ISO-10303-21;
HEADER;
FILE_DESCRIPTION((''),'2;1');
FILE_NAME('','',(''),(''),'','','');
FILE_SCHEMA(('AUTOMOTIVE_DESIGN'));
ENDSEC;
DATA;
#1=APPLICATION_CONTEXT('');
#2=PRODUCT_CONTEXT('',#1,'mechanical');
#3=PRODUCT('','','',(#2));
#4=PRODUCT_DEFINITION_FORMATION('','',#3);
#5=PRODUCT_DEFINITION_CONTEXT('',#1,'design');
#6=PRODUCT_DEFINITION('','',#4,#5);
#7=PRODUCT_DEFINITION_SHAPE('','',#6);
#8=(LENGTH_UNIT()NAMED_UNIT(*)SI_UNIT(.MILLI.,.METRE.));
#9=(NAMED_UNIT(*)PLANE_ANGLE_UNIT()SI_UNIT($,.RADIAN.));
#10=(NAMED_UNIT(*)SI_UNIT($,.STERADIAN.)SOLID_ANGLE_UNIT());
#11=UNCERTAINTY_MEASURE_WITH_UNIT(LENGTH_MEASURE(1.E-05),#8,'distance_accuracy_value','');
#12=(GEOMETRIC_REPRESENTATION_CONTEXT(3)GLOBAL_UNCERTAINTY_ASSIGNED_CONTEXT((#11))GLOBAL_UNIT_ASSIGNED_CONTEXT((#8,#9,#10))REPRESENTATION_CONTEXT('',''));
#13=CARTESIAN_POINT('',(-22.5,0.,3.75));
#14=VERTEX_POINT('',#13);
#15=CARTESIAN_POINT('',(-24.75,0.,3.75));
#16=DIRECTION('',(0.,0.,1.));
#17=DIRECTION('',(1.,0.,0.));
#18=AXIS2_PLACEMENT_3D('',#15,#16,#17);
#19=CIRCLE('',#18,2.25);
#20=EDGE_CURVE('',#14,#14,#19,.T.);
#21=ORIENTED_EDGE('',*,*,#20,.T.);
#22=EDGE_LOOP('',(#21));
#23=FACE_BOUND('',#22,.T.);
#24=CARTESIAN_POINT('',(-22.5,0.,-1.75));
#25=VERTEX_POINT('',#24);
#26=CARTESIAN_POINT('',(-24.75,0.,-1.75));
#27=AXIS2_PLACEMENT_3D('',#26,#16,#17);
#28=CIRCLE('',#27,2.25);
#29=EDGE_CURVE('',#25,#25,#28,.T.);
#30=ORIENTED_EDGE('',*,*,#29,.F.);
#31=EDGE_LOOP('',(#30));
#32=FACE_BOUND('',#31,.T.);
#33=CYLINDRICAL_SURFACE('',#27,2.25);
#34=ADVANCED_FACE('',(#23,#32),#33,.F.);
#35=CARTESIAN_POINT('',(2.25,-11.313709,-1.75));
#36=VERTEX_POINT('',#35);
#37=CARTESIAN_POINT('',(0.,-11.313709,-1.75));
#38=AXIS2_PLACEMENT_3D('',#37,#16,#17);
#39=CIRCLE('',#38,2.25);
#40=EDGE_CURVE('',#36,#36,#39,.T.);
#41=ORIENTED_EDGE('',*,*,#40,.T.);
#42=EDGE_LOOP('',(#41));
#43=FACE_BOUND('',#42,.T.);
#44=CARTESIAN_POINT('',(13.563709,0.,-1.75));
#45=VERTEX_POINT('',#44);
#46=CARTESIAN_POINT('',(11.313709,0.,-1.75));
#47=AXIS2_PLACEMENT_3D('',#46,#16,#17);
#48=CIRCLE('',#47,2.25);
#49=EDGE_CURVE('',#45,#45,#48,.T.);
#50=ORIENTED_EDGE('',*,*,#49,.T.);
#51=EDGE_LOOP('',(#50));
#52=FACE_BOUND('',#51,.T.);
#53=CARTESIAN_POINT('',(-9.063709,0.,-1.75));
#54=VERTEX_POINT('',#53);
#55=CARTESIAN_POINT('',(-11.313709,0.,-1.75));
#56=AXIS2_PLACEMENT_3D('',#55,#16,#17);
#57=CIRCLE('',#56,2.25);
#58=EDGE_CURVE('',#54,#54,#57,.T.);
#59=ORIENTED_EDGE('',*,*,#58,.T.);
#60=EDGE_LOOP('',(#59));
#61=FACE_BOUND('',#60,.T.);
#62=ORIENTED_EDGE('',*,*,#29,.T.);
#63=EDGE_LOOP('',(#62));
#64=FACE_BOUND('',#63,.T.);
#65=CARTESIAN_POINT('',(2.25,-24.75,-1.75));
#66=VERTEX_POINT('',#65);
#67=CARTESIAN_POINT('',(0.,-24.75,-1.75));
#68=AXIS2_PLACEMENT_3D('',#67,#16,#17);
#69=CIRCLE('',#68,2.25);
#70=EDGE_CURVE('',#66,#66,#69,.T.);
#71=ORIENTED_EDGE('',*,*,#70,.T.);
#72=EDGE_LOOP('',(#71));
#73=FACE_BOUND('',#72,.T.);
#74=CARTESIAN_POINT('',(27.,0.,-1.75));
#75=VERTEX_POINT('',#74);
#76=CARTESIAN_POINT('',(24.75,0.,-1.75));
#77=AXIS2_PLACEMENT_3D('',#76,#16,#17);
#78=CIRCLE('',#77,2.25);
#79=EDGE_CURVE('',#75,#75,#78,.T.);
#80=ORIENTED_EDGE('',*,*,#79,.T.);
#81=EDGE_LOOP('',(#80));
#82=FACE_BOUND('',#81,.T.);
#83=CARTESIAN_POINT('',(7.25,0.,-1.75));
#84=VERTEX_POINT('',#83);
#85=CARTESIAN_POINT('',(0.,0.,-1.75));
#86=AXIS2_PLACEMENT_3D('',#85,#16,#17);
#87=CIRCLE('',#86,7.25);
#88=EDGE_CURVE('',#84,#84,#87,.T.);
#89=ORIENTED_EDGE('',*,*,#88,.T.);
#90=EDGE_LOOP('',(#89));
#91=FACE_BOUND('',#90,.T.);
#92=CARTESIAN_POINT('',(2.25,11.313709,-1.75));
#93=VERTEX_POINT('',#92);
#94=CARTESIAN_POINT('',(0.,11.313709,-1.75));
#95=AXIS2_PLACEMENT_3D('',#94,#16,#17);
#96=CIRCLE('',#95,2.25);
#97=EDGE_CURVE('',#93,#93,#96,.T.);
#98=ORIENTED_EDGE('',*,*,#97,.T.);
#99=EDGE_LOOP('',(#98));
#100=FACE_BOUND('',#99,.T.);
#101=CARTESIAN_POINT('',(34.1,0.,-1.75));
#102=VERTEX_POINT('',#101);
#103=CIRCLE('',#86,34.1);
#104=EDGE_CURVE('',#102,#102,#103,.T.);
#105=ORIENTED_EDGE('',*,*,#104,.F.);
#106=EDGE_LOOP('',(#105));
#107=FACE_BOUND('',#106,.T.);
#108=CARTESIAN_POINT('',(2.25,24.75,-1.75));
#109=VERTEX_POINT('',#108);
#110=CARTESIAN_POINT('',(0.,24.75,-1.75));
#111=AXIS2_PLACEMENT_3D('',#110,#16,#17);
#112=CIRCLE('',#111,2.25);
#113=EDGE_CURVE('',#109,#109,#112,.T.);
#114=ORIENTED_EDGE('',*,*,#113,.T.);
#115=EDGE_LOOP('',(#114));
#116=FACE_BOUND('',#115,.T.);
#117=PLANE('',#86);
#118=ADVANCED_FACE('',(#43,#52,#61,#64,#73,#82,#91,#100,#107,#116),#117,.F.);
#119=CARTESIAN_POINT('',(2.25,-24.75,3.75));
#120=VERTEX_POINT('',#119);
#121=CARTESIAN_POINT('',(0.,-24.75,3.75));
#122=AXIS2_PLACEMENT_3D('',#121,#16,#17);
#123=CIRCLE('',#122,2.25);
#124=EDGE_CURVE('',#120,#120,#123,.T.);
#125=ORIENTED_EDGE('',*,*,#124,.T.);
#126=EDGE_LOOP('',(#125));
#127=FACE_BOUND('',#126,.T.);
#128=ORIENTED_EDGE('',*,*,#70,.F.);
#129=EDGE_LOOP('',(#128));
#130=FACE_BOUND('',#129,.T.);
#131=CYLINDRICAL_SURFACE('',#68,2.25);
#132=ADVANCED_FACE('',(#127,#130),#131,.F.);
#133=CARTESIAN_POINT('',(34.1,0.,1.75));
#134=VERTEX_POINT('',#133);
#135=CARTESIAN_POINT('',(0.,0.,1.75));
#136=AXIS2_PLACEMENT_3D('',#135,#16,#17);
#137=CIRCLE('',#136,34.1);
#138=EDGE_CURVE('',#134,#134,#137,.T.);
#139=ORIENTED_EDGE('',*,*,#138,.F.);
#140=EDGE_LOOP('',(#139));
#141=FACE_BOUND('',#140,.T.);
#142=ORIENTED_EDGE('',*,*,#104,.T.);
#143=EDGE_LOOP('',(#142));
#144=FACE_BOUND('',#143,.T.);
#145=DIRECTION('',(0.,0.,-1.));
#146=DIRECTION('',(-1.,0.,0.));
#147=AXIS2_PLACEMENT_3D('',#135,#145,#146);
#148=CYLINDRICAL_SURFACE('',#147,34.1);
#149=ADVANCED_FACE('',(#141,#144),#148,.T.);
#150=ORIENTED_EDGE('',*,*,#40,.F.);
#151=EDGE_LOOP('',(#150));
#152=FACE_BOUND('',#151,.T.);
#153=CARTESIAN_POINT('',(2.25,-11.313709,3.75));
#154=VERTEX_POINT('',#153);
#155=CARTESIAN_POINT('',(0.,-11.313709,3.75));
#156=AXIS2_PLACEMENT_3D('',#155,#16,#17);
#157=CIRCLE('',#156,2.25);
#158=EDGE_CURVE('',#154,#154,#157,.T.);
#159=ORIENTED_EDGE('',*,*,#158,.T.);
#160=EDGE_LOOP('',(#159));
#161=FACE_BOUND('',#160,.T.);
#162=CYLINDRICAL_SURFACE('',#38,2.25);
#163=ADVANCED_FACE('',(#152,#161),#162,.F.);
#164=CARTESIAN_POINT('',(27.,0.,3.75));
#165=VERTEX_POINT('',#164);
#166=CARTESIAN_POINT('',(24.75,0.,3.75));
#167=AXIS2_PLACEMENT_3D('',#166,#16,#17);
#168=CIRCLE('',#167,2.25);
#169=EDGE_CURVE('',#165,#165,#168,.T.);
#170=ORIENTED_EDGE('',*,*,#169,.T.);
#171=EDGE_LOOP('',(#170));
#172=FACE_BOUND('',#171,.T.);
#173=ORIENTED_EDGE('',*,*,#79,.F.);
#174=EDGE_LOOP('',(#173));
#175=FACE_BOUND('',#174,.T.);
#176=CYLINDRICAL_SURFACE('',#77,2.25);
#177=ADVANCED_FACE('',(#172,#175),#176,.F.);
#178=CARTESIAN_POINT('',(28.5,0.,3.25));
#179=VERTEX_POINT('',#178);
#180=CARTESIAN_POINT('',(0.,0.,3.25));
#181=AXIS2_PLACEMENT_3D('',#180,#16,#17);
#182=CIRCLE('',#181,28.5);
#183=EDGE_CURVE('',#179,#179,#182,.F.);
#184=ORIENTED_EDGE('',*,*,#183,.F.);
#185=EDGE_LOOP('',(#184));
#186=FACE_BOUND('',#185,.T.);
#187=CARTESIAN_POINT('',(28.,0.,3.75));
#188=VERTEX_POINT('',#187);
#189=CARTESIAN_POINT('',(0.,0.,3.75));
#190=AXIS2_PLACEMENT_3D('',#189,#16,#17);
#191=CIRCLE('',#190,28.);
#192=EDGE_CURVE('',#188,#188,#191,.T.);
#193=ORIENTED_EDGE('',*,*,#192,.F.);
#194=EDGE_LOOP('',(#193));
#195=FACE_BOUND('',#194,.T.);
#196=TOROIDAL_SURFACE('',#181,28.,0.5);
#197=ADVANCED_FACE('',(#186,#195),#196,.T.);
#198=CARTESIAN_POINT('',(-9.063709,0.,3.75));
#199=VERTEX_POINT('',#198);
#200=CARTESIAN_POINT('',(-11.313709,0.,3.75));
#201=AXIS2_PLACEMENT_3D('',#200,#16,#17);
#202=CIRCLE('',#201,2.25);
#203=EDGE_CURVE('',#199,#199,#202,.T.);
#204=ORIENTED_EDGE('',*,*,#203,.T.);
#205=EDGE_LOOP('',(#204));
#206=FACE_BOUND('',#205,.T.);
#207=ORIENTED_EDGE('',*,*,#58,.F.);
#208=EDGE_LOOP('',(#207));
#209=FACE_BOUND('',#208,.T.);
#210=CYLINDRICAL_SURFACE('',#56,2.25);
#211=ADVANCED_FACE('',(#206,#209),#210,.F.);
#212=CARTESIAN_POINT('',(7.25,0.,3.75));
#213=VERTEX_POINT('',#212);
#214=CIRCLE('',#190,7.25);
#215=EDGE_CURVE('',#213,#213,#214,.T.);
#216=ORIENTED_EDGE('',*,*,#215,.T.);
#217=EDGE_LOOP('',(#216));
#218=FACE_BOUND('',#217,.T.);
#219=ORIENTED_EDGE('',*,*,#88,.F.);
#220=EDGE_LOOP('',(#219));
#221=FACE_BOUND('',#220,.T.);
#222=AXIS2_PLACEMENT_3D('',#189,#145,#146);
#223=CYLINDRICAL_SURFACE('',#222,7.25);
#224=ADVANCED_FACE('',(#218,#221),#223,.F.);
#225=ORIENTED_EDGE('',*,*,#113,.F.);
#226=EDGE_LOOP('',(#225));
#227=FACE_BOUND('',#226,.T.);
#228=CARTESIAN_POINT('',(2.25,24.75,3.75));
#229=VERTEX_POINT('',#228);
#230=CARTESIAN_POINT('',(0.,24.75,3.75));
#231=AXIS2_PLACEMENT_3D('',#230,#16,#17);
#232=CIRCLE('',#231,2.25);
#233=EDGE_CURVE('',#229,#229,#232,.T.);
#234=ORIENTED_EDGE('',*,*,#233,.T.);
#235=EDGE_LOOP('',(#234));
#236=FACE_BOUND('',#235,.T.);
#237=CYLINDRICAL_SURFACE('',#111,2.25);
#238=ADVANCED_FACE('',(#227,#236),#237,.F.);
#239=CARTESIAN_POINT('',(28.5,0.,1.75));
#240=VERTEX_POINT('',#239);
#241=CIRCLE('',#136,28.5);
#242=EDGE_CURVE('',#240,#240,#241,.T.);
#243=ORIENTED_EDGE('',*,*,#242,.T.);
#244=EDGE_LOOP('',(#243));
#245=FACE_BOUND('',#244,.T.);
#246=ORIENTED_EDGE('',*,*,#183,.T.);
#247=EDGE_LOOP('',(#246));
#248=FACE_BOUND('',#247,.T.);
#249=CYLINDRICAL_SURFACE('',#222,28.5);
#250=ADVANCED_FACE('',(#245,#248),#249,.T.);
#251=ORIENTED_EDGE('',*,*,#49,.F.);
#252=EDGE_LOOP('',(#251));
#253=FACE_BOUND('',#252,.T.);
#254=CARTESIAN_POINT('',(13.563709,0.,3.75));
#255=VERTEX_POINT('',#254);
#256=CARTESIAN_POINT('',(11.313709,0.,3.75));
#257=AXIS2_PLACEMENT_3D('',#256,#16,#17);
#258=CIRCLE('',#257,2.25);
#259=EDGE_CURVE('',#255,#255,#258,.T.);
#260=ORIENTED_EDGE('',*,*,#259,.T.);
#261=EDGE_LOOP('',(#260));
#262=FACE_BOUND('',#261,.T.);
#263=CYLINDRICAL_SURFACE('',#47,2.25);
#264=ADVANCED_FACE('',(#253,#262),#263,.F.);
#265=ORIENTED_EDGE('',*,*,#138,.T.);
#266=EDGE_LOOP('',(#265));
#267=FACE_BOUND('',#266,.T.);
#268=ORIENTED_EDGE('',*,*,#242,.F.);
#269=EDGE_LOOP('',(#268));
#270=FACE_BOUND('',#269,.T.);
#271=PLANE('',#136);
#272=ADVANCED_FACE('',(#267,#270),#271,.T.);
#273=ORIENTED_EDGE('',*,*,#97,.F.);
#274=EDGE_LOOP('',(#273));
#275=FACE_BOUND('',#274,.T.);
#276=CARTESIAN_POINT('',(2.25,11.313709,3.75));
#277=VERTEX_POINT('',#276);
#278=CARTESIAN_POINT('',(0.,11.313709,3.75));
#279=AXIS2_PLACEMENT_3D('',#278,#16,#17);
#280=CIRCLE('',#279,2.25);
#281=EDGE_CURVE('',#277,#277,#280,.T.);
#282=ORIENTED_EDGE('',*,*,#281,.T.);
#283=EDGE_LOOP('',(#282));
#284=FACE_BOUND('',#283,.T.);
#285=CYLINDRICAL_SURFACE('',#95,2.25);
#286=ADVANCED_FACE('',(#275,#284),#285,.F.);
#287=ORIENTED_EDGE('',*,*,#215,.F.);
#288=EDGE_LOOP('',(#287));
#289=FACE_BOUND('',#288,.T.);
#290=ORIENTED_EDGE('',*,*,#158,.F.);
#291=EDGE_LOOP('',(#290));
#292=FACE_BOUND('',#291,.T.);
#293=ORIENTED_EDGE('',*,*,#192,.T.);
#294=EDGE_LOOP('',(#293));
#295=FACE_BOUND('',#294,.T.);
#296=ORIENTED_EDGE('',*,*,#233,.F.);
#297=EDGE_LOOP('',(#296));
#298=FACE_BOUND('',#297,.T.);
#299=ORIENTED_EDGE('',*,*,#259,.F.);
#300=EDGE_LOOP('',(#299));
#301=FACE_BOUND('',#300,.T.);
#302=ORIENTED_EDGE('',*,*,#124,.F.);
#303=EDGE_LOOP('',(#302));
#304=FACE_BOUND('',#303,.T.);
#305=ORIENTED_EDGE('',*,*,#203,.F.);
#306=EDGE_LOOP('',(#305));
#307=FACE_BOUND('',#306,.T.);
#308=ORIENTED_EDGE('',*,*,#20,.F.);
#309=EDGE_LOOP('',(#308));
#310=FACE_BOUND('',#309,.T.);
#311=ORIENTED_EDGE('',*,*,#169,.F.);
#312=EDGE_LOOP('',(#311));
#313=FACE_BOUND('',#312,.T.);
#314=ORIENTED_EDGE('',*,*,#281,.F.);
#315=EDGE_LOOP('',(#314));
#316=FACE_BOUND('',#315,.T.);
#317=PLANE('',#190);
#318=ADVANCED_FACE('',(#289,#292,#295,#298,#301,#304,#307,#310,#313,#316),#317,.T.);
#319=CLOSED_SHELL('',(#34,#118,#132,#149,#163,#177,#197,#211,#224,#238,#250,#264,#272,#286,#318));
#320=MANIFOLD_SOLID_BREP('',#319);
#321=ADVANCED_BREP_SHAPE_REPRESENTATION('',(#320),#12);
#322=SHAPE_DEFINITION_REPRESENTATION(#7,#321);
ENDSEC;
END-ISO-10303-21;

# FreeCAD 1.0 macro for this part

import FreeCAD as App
import Part
import Sketcher
from FreeCAD import Vector
Q = App.Units.Quantity


def edges_at(feature, points):
    """Names of the edges that pass closest to the given points."""
    edges = feature.Shape.Edges
    near = lambda p: min(range(len(edges)), key=lambda i: edges[i].distToShape(Part.Vertex(*p))[0])
    return sorted({f"Edge{near(p) + 1}" for p in points})

doc = App.newDocument("Part")
body = doc.addObject("PartDesign::Body", "Body")

# Sketch on XY plane
sketch1 = body.newObject("Sketcher::SketchObject", "Sketch")
sketch1.AttachmentSupport = (doc.getObject("XY_Plane"), [""])
sketch1.MapMode = "FlatFace"
sketch1.addGeometry(Part.Circle(Vector(0, 0, 0), Vector(0, 0, 1), 34), False)
sketch1.addConstraint(Sketcher.Constraint("Coincident", 0, 3, -1, 1))
sketch1.addConstraint(Sketcher.Constraint("Diameter", 0, Q("68.2 mm")))
pad1 = body.newObject("PartDesign::Pad", "Pad")
pad1.Profile = sketch1
pad1.Length = 3.5
pad1.Midplane = True

# Sketch on XY plane
sketch2 = body.newObject("Sketcher::SketchObject", "Sketch001")
sketch2.AttachmentSupport = (doc.getObject("XY_Plane"), [""])
sketch2.MapMode = "FlatFace"
sketch2.AttachmentOffset = App.Placement(Vector(0, 0, 1.75), App.Rotation())
sketch2.addGeometry(Part.Circle(Vector(0, 0, 0), Vector(0, 0, 1), 28), False)
sketch2.addConstraint(Sketcher.Constraint("Coincident", 0, 3, -1, 1))
sketch2.addConstraint(Sketcher.Constraint("Diameter", 0, Q("57 mm")))
pad2 = body.newObject("PartDesign::Pad", "Pad001")
pad2.Profile = sketch2
pad2.Length = 2

# Sketch on XY plane
sketch3 = body.newObject("Sketcher::SketchObject", "Sketch002")
sketch3.AttachmentSupport = (doc.getObject("XY_Plane"), [""])
sketch3.MapMode = "FlatFace"
sketch3.AttachmentOffset = App.Placement(Vector(0, 0, 1.75), App.Rotation())
sketch3.addGeometry(Part.Circle(Vector(0, 24.8, 0), Vector(0, 0, 1), 2.2), False)
sketch3.addGeometry(Part.Circle(Vector(0, 11.3, 0), Vector(0, 0, 1), 2.2), False)
sketch3.addGeometry(Part.Circle(Vector(24.8, 0, 0), Vector(0, 0, 1), 2.2), False)
sketch3.addGeometry(Part.Circle(Vector(11.3, 0, 0), Vector(0, 0, 1), 2.2), False)
sketch3.addGeometry(Part.Circle(Vector(0, -24.8, 0), Vector(0, 0, 1), 2.2), False)
sketch3.addGeometry(Part.Circle(Vector(0, -11.3, 0), Vector(0, 0, 1), 2.2), False)
sketch3.addGeometry(Part.Circle(Vector(-24.8, 0, 0), Vector(0, 0, 1), 2.2), False)
sketch3.addGeometry(Part.Circle(Vector(-11.3, 0, 0), Vector(0, 0, 1), 2.2), False)
sketch3.addConstraint(Sketcher.Constraint("Equal", 0, 1))
sketch3.addConstraint(Sketcher.Constraint("Equal", 1, 2))
sketch3.addConstraint(Sketcher.Constraint("Equal", 2, 3))
sketch3.addConstraint(Sketcher.Constraint("Equal", 3, 4))
sketch3.addConstraint(Sketcher.Constraint("Equal", 4, 5))
sketch3.addConstraint(Sketcher.Constraint("Equal", 5, 6))
sketch3.addConstraint(Sketcher.Constraint("Equal", 6, 7))
sketch3.addConstraint(Sketcher.Constraint("Symmetric", 0, 3, 4, 3, -1, 1))
sketch3.addConstraint(Sketcher.Constraint("Symmetric", 1, 3, 5, 3, -1, 1))
sketch3.addConstraint(Sketcher.Constraint("Symmetric", 2, 3, 6, 3, -1, 1))
sketch3.addConstraint(Sketcher.Constraint("Symmetric", 3, 3, 7, 3, -1, 1))
sketch3.addConstraint(Sketcher.Constraint("PointOnObject", 0, 3, -2))
sketch3.addConstraint(Sketcher.Constraint("PointOnObject", 1, 3, -2))
sketch3.addConstraint(Sketcher.Constraint("PointOnObject", 2, 3, -1))
sketch3.addConstraint(Sketcher.Constraint("PointOnObject", 3, 3, -1))
sketch3.addConstraint(Sketcher.Constraint("Diameter", 0, Q("4.5 mm")))
sketch3.addConstraint(Sketcher.Constraint("DistanceY", 4, 3, 0, 3, Q("49.5 mm")))
sketch3.addConstraint(Sketcher.Constraint("DistanceX", -1, 1, 2, 3, Q("24.75 mm")))
sketch3.addConstraint(Sketcher.Constraint("DistanceY", -1, 1, 1, 3, Q("11.313709 mm")))
sketch3.addConstraint(Sketcher.Constraint("DistanceX", -1, 1, 3, 3, Q("11.313709 mm")))
pocket1 = body.newObject("PartDesign::Pocket", "Pocket")
pocket1.Profile = sketch3
pocket1.Type = "ThroughAll"
pocket1.Midplane = True

# Sketch on XY plane
sketch4 = body.newObject("Sketcher::SketchObject", "Sketch003")
sketch4.AttachmentSupport = (doc.getObject("XY_Plane"), [""])
sketch4.MapMode = "FlatFace"
sketch4.AttachmentOffset = App.Placement(Vector(0, 0, 1.75), App.Rotation())
sketch4.addGeometry(Part.Circle(Vector(0, 0, 0), Vector(0, 0, 1), 7), False)
sketch4.addConstraint(Sketcher.Constraint("Coincident", 0, 3, -1, 1))
sketch4.addConstraint(Sketcher.Constraint("Diameter", 0, Q("14.5 mm")))
pocket2 = body.newObject("PartDesign::Pocket", "Pocket001")
pocket2.Profile = sketch4
pocket2.Type = "ThroughAll"
pocket2.Midplane = True
doc.recompute()

fillet = body.newObject("PartDesign::Fillet", "Fillet")
fillet.Base = (pocket2, edges_at(pocket2, [(-28.5, 0, 3.75)]))
fillet.Radius = 0.5

doc.recompute()
